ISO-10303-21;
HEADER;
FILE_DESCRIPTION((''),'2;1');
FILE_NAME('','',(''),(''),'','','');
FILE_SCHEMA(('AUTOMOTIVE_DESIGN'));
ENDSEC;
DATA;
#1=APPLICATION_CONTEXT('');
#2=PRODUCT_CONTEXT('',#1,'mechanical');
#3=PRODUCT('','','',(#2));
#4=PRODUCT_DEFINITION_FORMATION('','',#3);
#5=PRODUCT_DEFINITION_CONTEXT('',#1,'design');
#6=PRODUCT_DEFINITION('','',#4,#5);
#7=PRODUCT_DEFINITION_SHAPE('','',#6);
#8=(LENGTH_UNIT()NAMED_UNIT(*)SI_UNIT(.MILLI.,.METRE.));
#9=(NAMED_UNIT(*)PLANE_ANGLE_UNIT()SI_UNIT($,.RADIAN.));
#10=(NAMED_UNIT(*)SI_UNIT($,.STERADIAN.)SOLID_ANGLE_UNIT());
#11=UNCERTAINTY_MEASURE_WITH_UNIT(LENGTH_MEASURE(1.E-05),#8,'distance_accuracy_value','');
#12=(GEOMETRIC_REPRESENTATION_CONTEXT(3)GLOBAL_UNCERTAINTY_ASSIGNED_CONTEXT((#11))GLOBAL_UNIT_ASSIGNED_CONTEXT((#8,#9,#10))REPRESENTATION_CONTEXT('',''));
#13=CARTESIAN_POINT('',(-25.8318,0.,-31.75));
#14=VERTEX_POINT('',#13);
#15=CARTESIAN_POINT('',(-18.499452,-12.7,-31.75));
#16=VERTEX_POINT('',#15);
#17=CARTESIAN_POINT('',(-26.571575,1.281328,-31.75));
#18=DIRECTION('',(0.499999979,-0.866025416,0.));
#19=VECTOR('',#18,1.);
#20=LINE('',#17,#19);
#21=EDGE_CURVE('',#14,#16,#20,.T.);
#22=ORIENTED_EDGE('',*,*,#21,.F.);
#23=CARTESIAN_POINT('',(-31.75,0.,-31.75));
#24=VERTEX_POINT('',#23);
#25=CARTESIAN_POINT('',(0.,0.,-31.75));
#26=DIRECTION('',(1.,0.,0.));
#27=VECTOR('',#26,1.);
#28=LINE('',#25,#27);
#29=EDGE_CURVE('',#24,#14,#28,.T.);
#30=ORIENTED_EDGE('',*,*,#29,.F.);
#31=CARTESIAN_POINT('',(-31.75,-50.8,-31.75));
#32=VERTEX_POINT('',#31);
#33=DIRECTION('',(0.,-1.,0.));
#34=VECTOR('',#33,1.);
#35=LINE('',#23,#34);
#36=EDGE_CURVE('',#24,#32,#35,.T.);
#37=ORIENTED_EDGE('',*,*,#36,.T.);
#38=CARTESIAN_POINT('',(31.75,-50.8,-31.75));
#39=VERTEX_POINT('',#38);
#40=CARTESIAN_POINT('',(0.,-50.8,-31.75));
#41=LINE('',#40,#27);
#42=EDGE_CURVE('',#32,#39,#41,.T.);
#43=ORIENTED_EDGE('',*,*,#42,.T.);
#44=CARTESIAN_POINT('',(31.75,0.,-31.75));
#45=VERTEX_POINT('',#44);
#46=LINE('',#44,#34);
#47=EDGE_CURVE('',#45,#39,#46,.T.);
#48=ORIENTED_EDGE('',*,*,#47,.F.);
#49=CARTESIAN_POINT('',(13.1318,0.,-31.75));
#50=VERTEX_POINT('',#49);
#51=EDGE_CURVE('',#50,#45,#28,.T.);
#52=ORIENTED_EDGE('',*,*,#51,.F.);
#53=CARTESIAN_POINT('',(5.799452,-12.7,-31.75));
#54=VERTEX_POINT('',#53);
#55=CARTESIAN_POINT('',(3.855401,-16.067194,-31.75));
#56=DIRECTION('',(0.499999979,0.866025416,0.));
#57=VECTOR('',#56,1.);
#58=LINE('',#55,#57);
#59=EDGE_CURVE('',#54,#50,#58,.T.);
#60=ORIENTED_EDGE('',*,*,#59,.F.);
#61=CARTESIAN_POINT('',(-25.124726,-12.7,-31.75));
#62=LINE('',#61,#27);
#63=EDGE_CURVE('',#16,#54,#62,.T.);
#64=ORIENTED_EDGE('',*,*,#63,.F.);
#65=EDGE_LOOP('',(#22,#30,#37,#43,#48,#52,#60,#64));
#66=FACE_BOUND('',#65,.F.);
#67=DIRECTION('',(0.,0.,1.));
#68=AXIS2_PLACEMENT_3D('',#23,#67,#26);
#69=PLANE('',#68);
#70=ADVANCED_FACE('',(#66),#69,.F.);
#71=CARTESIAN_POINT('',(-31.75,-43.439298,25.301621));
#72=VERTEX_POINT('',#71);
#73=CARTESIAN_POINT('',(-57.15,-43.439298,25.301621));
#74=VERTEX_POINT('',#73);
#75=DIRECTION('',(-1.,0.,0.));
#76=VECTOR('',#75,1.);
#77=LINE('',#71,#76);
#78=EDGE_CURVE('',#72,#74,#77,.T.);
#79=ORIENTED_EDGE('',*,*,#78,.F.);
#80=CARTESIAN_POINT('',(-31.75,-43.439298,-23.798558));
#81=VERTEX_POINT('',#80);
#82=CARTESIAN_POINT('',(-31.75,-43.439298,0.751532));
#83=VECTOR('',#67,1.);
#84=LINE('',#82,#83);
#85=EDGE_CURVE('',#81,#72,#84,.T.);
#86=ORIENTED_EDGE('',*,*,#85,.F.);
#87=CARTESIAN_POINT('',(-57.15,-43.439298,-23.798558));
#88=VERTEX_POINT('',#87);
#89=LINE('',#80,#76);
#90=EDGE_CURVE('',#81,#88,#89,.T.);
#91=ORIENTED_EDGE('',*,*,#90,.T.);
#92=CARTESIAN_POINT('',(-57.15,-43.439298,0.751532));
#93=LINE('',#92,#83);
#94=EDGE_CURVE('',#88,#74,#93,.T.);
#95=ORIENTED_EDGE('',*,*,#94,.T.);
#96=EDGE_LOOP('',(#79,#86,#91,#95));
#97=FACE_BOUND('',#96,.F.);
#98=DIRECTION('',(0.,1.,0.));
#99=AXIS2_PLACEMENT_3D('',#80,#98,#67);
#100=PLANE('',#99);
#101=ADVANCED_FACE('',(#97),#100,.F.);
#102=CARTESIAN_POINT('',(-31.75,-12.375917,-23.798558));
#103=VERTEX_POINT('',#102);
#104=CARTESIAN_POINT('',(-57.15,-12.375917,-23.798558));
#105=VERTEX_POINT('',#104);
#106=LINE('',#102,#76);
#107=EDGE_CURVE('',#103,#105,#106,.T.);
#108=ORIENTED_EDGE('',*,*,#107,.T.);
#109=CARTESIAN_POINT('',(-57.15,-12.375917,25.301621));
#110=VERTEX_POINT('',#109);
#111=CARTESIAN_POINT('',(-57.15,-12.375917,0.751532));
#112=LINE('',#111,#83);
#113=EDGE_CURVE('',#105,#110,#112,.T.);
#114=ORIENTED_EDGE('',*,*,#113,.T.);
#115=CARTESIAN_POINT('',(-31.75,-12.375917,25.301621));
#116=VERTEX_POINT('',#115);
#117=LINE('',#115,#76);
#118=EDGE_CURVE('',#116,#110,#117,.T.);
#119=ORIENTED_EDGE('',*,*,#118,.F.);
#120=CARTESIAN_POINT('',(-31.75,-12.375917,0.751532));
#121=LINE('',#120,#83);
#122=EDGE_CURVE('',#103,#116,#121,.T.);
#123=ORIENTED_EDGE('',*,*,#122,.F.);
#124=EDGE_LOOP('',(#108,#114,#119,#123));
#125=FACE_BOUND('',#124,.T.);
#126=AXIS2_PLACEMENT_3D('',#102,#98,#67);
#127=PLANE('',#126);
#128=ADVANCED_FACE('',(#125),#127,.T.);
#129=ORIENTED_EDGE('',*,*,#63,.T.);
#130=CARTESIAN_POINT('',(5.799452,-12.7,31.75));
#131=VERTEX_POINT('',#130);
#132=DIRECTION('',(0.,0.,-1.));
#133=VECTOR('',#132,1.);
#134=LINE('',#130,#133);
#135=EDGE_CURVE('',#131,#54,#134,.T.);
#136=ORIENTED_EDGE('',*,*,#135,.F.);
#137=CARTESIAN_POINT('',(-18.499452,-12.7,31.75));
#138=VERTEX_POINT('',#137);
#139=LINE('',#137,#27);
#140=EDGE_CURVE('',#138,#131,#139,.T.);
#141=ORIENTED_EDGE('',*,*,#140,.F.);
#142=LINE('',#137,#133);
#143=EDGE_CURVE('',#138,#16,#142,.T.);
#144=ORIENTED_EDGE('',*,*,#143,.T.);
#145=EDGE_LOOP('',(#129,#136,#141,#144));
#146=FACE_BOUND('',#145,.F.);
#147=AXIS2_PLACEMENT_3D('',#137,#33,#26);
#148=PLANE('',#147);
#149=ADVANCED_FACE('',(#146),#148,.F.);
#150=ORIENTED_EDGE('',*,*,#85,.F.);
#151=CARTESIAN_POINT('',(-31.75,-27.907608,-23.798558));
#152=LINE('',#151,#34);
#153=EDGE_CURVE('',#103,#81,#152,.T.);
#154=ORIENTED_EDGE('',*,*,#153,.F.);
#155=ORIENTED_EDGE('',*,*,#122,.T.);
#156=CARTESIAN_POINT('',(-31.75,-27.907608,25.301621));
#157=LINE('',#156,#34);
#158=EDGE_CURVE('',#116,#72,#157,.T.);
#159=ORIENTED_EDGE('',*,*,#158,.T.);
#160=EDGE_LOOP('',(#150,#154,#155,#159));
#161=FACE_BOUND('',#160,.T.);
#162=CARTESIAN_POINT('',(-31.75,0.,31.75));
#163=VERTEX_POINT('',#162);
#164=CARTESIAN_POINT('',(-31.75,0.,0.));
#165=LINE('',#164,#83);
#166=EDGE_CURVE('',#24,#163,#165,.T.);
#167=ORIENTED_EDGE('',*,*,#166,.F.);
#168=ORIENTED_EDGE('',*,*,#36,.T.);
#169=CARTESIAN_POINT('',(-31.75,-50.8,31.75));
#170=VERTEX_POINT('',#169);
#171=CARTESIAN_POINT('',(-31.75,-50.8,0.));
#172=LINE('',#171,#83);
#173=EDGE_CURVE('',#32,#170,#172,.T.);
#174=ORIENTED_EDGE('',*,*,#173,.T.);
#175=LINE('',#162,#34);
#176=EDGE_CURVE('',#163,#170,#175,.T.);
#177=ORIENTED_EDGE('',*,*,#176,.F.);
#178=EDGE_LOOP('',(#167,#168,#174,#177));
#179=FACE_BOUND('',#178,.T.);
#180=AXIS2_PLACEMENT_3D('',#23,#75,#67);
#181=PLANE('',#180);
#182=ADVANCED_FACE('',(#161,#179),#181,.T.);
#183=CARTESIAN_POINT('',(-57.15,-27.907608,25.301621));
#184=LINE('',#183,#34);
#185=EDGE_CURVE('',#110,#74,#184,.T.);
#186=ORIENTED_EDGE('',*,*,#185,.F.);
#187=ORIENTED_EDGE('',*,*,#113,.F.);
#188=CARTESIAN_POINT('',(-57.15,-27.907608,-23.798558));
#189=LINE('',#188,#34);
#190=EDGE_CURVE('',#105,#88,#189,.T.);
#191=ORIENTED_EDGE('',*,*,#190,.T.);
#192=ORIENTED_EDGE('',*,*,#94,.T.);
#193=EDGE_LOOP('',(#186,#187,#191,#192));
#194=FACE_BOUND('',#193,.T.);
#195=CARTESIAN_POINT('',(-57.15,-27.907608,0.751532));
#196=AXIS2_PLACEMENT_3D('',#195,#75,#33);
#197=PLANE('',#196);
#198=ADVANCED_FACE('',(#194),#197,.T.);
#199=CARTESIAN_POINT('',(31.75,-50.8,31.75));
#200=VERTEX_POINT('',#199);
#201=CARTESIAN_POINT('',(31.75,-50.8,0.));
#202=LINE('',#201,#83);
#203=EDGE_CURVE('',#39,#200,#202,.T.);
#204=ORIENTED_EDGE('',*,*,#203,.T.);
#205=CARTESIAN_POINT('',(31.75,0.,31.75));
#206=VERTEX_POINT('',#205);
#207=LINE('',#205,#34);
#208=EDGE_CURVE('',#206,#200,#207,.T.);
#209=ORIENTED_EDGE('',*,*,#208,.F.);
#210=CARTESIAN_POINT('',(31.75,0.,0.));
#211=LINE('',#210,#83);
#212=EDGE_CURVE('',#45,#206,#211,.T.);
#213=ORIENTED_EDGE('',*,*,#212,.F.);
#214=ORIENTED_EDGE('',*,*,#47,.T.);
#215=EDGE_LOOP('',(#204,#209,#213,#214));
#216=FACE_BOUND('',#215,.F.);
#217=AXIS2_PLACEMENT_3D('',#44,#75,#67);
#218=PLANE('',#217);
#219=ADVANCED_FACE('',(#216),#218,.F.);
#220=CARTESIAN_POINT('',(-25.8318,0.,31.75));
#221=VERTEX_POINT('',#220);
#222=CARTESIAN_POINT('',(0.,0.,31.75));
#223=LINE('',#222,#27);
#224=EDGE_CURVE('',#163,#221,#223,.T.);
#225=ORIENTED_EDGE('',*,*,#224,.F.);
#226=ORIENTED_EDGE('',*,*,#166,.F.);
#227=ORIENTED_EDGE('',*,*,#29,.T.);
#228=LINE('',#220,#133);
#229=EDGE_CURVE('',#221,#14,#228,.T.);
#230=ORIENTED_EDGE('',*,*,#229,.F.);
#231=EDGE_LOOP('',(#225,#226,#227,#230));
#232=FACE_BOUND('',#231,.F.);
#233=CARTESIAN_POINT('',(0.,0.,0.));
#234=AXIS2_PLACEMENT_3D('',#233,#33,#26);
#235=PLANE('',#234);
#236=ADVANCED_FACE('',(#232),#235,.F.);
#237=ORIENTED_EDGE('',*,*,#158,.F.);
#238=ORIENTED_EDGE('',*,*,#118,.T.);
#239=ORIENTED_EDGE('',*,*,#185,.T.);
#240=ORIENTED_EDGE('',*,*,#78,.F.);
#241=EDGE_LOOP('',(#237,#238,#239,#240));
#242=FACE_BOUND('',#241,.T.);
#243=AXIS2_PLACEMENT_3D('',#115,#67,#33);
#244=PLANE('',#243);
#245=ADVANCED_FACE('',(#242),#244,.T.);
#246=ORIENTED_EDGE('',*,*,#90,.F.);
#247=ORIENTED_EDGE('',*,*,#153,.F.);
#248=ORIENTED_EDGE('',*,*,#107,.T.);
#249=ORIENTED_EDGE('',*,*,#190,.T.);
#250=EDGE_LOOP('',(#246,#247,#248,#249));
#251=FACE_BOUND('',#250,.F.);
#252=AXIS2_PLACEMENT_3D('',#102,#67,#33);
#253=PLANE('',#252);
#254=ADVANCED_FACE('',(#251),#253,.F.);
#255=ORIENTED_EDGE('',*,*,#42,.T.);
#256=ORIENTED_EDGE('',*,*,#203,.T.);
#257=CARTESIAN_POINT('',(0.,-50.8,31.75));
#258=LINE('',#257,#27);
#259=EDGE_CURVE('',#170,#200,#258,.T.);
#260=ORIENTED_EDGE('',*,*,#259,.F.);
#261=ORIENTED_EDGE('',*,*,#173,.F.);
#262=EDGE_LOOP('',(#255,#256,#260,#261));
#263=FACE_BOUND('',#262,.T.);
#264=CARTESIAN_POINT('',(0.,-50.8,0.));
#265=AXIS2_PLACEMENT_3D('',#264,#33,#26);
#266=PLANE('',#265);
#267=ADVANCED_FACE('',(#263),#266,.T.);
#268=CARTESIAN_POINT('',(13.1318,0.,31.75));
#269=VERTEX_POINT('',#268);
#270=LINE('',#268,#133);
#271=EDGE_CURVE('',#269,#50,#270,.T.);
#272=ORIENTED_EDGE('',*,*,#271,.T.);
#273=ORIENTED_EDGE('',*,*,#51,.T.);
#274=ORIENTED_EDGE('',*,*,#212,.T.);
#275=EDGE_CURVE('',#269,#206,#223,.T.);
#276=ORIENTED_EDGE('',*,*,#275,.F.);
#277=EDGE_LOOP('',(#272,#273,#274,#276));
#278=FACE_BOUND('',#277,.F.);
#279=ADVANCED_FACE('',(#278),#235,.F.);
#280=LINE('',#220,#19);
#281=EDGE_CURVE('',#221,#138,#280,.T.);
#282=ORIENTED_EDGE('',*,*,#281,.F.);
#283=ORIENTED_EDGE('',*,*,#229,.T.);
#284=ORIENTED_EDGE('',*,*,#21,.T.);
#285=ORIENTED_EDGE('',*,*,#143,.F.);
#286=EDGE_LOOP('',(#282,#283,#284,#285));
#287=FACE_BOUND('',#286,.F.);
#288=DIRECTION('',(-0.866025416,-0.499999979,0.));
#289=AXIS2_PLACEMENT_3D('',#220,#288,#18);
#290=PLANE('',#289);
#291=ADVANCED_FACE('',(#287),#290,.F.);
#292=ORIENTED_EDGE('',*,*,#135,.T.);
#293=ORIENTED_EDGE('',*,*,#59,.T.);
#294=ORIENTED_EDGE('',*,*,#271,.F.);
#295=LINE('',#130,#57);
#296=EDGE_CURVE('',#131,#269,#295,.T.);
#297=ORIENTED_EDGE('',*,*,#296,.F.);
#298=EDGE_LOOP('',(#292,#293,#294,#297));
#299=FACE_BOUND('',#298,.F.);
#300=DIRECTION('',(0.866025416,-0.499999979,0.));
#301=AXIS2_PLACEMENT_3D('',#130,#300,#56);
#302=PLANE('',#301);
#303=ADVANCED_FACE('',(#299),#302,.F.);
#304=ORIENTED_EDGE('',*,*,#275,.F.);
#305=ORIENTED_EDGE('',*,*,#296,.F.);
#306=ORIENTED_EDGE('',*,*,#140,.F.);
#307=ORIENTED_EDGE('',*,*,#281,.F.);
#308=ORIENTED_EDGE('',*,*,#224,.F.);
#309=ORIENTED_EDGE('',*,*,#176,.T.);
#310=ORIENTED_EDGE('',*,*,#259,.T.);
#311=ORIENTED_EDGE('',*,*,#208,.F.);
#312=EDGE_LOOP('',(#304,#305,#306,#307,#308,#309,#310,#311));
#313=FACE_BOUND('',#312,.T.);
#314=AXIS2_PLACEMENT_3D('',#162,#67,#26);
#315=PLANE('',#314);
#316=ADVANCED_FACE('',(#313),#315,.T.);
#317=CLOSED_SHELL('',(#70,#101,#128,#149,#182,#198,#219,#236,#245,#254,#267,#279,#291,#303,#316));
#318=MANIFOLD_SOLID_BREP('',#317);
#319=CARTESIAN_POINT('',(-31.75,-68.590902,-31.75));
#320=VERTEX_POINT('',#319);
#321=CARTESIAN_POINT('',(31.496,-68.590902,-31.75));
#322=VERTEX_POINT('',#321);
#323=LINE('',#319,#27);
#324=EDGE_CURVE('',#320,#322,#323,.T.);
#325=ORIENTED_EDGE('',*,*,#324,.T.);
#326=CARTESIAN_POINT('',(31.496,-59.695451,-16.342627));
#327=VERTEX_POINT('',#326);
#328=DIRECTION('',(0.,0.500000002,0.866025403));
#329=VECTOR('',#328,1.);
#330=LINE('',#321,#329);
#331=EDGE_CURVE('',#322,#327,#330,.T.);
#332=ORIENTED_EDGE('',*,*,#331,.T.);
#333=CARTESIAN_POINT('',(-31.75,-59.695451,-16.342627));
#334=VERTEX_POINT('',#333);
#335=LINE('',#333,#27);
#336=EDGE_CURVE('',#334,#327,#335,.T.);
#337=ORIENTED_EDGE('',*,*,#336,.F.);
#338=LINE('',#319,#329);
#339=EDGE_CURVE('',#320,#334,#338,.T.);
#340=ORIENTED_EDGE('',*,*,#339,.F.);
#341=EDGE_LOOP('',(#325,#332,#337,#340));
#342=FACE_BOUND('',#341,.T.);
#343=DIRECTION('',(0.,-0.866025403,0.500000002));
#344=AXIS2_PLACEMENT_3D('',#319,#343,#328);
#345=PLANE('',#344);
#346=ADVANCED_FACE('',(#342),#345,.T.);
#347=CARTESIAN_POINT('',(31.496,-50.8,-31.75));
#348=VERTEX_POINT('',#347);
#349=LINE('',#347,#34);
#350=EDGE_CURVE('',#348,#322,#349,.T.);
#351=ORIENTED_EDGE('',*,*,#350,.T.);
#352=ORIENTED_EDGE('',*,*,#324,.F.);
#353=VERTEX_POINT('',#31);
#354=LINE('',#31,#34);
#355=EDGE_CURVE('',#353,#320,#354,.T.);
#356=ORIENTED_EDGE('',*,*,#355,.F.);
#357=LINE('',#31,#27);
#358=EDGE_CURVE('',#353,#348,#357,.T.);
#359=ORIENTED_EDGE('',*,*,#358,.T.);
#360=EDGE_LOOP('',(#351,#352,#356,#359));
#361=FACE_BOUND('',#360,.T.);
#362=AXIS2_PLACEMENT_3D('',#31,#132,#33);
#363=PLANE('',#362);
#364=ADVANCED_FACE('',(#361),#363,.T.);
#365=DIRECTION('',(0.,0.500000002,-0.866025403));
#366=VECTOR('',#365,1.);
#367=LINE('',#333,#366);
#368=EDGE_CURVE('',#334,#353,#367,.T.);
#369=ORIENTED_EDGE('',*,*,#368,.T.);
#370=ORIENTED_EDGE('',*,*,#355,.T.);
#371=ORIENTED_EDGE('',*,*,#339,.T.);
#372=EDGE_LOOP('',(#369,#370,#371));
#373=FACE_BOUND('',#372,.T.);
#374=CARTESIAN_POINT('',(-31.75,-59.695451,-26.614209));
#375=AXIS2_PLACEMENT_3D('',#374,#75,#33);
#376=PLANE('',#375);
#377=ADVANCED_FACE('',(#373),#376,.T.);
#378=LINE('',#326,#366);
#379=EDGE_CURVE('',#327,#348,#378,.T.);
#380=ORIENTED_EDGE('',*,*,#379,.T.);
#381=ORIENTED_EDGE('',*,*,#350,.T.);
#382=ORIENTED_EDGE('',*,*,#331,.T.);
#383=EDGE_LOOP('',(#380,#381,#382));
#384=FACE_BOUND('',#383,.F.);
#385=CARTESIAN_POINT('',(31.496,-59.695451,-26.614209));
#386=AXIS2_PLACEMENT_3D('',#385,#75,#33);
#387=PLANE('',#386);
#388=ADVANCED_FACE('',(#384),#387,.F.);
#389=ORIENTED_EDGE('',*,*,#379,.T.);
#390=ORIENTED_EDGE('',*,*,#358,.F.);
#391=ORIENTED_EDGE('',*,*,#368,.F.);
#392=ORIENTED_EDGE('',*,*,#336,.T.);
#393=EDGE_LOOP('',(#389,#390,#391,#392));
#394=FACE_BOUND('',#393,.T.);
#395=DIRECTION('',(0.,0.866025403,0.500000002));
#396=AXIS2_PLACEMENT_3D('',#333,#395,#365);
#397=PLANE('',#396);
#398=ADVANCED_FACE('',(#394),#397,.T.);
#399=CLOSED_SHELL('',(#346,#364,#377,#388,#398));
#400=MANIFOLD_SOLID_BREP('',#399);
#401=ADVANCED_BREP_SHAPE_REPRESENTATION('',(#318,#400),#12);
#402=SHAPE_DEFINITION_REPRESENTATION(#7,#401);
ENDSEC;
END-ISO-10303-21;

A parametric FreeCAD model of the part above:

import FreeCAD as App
import Part
import Sketcher
from FreeCAD import Vector
Q = App.Units.Quantity


def add_polygon(sketch, points):
    """Adds a closed chain of lines whose ends are joined by coincident constraints."""
    first, n = sketch.GeometryCount, len(points)
    for a, b in zip(points, points[1:] + points[:1]):
        sketch.addGeometry(Part.LineSegment(App.Vector(*a, 0), App.Vector(*b, 0)), False)
    for i in range(n):
        sketch.addConstraint(Sketcher.Constraint("Coincident", first + i, 2, first + (i + 1) % n, 1))

doc = App.newDocument("Part")
body = doc.addObject("PartDesign::Body", "Body")

# Sketch on XZ plane
sketch1 = body.newObject("Sketcher::SketchObject", "Sketch")
sketch1.AttachmentSupport = (doc.getObject("XZ_Plane"), [""])
sketch1.MapMode = "FlatFace"
add_polygon(sketch1, [(-32, 32), (-32, -32), (32, -32), (32, 32)])  # lines 0-3
sketch1.addConstraint([
    Sketcher.Constraint("Vertical", 0),
    Sketcher.Constraint("Horizontal", 1),
    Sketcher.Constraint("Vertical", 2),
    Sketcher.Constraint("Horizontal", 3),
    Sketcher.Constraint("Symmetric", 0, 2, 2, 2, -1, 1),
    Sketcher.Constraint("Equal", 3, 0),
    Sketcher.Constraint("DistanceX", 1, 1, 1, 2, Q("2.5 in")),
])
pad1 = body.newObject("PartDesign::Pad", "Pad")
pad1.Profile = sketch1
pad1.Length = Q("2 in")

# Sketch on XY plane
sketch2 = body.newObject("Sketcher::SketchObject", "Sketch001")
sketch2.AttachmentSupport = (doc.getObject("XY_Plane"), [""])
sketch2.MapMode = "FlatFace"
sketch2.AttachmentOffset = App.Placement(Vector(0, 0, 1.25 * 25.4), App.Rotation())
add_polygon(sketch2, [(13, 0), (-26, 0), (-18, -13), (6, -13)])  # lines 0-3
sketch2.addConstraint([
    Sketcher.Constraint("Horizontal", 0),
    Sketcher.Constraint("Horizontal", 2),
    Sketcher.Constraint("PointOnObject", 0, 2, -1),
    Sketcher.Constraint("Equal", 1, 3),
    Sketcher.Constraint("Angle", 1, Q("-60.000001 deg")),
    Sketcher.Constraint("DistanceY", 1, 2, -1, 1, Q("0.5 in")),
    Sketcher.Constraint("DistanceX", 0, 2, 0, 1, Q("1.534 in")),
    Sketcher.Constraint("DistanceX", 0, 2, -1, 1, Q("1.017 in")),
])
pocket1 = body.newObject("PartDesign::Pocket", "Pocket")
pocket1.Profile = sketch2
pocket1.Length = Q("3.23 in")

# Sketch on YZ plane
sketch3 = body.newObject("Sketcher::SketchObject", "Sketch002")
sketch3.AttachmentSupport = (doc.getObject("YZ_Plane"), [""])
sketch3.MapMode = "FlatFace"
sketch3.AttachmentOffset = App.Placement(Vector(0, 0, -1.25 * 25.4), App.Rotation())
add_polygon(sketch3, [(-12, 25), (-12, -24), (-43, -24), (-43, 25)])  # lines 0-3
sketch3.addConstraint([
    Sketcher.Constraint("Vertical", 0),
    Sketcher.Constraint("Horizontal", 1),
    Sketcher.Constraint("Vertical", 2),
    Sketcher.Constraint("Horizontal", 3),
    Sketcher.Constraint("DistanceX", 1, 2, 1, 1, Q("31.063381 mm")),
    Sketcher.Constraint("DistanceY", 0, 2, 0, 1, Q("49.100179 mm")),
    Sketcher.Constraint("DistanceX", 1, 2, -1, 1, Q("43.439298 mm")),
    Sketcher.Constraint("DistanceY", -1, 1, 2, 2, Q("25.301621 mm")),
])
pad2 = body.newObject("PartDesign::Pad", "Pad001")
pad2.Profile = sketch3
pad2.Length = Q("1 in")
pad2.Reversed = True
body2 = doc.addObject("PartDesign::Body", "Body001")

# Sketch on YZ plane
sketch4 = body2.newObject("Sketcher::SketchObject", "Sketch003")
sketch4.AttachmentSupport = (doc.getObject("YZ_Plane001"), [""])
sketch4.MapMode = "FlatFace"
sketch4.AttachmentOffset = App.Placement(Vector(0, 0, -1.25 * 25.4), App.Rotation())
add_polygon(sketch4, [(-60, -16), (-51, -32), (-69, -32)])  # lines 0-2
sketch4.addConstraint([
    Sketcher.Constraint("Horizontal", 1),
    Sketcher.Constraint("Equal", 0, 2),
    Sketcher.Constraint("DistanceX", 0, 2, -1, 1, Q("2 in")),
    Sketcher.Constraint("Angle", 0, Q("-60 deg")),
    Sketcher.Constraint("DistanceY", 0, 2, -1, 1, Q("1.25 in")),
    Sketcher.Constraint("Distance", 0, Q("17.790902 mm")),
])
pad3 = body2.newObject("PartDesign::Pad", "Pad002")
pad3.Profile = sketch4
pad3.Length = Q("2.49 in")

doc.recompute()
